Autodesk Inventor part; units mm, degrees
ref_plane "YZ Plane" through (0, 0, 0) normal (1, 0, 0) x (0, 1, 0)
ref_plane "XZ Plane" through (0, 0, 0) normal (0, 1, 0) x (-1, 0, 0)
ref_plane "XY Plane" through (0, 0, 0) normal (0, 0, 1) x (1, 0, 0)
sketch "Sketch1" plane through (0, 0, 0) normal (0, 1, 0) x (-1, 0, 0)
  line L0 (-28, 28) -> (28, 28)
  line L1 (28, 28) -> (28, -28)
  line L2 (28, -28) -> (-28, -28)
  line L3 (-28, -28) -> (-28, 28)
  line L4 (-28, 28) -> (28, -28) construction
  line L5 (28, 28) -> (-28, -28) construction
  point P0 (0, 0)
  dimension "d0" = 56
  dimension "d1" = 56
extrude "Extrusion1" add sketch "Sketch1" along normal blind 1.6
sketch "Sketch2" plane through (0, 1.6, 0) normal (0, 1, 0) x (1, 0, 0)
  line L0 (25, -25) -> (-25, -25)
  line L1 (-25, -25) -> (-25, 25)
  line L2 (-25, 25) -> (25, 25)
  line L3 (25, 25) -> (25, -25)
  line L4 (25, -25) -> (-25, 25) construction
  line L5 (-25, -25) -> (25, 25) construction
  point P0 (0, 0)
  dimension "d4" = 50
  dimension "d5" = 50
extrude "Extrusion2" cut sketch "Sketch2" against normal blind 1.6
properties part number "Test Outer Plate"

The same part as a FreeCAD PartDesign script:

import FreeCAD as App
import Part
import Sketcher
Q = App.Units.Quantity

doc = App.newDocument("Part")
body = doc.addObject("PartDesign::Body", "Body")

sketch1 = body.newObject("Sketcher::SketchObject", "Sketch")
sketch1.AttachmentSupport = (doc.getObject("XZ_Plane"), [""])
sketch1.MapMode = "FlatFace"
sketch1.addGeometry([
    Part.LineSegment(App.Vector(-28, 28, 0), App.Vector(28, 28, 0)),
    Part.LineSegment(App.Vector(28, 28, 0), App.Vector(28, -28, 0)),
    Part.LineSegment(App.Vector(28, -28, 0), App.Vector(-28, -28, 0)),
    Part.LineSegment(App.Vector(-28, -28, 0), App.Vector(-28, 28, 0)),
], False)
sketch1.addConstraint([
    Sketcher.Constraint("Coincident", 0, 2, 1, 1),
    Sketcher.Constraint("Coincident", 1, 2, 2, 1),
    Sketcher.Constraint("Coincident", 2, 2, 3, 1),
    Sketcher.Constraint("Coincident", 3, 2, 0, 1),
    Sketcher.Constraint("Horizontal", 0),
    Sketcher.Constraint("Vertical", 1),
    Sketcher.Constraint("Horizontal", 2),
    Sketcher.Constraint("Vertical", 3),
    Sketcher.Constraint("Symmetric", 0, 2, 2, 2, -1, 1),
    Sketcher.Constraint("Equal", 2, 1),
    Sketcher.Constraint("DistanceX", 0, 1, 0, 2, Q("56 mm")),
])
pad1 = body.newObject("PartDesign::Pad", "Pad")
pad1.Profile = sketch1
pad1.Length = 1.6
pad1.Reversed = True

sketch2 = body.newObject("Sketcher::SketchObject", "Sketch001")
sketch2.AttachmentSupport = (doc.getObject("XZ_Plane"), [""])
sketch2.MapMode = "FlatFace"
sketch2.AttachmentOffset = App.Placement(App.Vector(0, 0, -1.6), App.Rotation())
sketch2.addGeometry([
    Part.LineSegment(App.Vector(-25, 25, 0), App.Vector(25, 25, 0)),
    Part.LineSegment(App.Vector(25, 25, 0), App.Vector(25, -25, 0)),
    Part.LineSegment(App.Vector(25, -25, 0), App.Vector(-25, -25, 0)),
    Part.LineSegment(App.Vector(-25, -25, 0), App.Vector(-25, 25, 0)),
], False)
sketch2.addConstraint([
    Sketcher.Constraint("Coincident", 0, 2, 1, 1),
    Sketcher.Constraint("Coincident", 1, 2, 2, 1),
    Sketcher.Constraint("Coincident", 2, 2, 3, 1),
    Sketcher.Constraint("Coincident", 3, 2, 0, 1),
    Sketcher.Constraint("Horizontal", 0),
    Sketcher.Constraint("Vertical", 1),
    Sketcher.Constraint("Horizontal", 2),
    Sketcher.Constraint("Vertical", 3),
    Sketcher.Constraint("Symmetric", 0, 2, 2, 2, -1, 1),
    Sketcher.Constraint("Equal", 2, 1),
    Sketcher.Constraint("DistanceX", 0, 1, 0, 2, Q("50 mm")),
])
pocket1 = body.newObject("PartDesign::Pocket", "Pocket")
pocket1.Profile = sketch2
pocket1.Length = 1.6
pocket1.Reversed = True

doc.recompute()
